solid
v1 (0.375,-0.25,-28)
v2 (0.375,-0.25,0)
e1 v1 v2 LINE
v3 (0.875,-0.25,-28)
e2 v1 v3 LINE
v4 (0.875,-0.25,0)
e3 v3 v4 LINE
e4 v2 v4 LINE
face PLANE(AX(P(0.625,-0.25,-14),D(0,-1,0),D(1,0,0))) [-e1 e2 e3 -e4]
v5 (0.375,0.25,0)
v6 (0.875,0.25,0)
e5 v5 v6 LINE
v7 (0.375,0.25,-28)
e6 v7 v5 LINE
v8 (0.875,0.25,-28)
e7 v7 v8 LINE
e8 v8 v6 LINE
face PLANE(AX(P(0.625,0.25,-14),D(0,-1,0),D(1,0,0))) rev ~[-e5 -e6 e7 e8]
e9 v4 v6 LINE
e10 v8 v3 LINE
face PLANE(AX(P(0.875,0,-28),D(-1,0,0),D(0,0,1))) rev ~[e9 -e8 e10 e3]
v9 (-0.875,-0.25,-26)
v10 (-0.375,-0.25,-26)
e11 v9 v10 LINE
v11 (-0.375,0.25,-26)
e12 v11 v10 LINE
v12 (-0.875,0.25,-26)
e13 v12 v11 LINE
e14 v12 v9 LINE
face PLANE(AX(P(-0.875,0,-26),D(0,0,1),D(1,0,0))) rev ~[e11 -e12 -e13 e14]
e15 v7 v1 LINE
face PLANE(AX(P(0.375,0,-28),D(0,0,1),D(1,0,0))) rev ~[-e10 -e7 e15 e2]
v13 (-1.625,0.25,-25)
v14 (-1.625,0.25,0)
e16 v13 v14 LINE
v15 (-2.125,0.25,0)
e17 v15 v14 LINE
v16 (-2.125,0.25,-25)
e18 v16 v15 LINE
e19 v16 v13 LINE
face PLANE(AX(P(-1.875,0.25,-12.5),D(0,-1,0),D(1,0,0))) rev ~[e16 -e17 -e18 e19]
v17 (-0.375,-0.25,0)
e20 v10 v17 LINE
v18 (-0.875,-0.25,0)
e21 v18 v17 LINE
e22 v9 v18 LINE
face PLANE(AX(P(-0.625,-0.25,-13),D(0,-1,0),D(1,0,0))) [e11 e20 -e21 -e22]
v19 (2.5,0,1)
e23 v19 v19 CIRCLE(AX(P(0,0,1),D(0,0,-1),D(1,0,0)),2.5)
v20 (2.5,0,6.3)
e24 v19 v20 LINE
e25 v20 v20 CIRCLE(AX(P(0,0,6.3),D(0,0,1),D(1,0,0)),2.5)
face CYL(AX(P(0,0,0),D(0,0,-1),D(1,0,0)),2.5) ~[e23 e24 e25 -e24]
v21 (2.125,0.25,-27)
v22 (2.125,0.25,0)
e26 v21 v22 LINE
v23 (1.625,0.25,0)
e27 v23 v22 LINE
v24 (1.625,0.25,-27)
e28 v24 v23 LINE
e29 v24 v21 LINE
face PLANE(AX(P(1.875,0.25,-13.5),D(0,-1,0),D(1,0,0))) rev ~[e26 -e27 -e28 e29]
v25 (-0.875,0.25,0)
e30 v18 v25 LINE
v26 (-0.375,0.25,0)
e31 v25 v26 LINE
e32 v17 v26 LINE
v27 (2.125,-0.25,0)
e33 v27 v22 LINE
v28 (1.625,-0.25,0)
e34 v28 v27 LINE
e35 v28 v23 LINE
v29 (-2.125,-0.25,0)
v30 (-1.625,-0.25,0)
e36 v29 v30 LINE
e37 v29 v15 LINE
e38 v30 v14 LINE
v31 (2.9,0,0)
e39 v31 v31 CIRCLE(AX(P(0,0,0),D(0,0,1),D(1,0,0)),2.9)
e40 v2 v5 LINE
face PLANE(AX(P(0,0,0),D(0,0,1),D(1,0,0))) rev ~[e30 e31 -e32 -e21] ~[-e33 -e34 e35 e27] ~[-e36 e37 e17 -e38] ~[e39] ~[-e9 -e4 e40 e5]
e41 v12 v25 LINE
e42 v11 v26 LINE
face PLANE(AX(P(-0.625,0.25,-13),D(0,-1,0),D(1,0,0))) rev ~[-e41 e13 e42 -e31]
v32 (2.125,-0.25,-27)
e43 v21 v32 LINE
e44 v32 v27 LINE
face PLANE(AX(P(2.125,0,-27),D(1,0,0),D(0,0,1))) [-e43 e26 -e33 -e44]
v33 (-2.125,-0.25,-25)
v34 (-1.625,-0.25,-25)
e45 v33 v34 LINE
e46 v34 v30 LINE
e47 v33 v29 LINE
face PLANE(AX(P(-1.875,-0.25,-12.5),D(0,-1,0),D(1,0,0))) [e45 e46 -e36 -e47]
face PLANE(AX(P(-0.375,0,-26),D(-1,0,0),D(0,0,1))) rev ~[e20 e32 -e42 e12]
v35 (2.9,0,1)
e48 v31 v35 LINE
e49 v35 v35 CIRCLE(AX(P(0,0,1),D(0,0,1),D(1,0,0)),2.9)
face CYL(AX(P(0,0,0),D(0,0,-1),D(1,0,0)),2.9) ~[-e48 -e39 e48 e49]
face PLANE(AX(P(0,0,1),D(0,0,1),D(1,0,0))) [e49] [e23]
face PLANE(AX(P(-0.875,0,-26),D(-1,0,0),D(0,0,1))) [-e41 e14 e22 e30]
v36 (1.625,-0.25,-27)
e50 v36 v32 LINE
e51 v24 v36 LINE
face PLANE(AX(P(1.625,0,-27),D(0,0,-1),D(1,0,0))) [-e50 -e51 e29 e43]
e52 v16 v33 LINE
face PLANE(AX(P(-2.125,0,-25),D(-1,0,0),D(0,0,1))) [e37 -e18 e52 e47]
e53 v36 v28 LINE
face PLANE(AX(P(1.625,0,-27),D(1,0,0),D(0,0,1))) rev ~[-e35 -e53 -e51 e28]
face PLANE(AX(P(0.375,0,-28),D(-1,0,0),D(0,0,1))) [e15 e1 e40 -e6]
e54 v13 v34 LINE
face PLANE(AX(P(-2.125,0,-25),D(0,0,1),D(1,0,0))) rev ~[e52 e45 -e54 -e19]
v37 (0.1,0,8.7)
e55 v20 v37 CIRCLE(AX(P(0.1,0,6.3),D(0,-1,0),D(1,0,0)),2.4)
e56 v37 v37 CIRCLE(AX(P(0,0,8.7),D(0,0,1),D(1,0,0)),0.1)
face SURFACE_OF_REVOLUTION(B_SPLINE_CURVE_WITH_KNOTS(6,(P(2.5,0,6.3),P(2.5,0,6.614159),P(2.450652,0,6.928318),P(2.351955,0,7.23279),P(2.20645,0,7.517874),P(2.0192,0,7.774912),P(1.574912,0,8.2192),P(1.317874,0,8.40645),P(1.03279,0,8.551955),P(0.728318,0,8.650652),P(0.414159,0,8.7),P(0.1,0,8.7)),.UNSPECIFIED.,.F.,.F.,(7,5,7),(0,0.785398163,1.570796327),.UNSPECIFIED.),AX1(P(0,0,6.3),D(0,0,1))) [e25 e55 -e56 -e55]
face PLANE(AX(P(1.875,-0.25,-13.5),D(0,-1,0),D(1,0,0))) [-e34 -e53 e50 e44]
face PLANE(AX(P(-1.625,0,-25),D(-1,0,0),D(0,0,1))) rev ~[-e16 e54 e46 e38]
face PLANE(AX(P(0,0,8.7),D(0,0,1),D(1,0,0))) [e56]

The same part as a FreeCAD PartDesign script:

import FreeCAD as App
import Part
import Sketcher


def edges_at(feature, points):
    """Names of the edges that pass closest to the given points."""
    edges = feature.Shape.Edges
    near = lambda p: min(range(len(edges)), key=lambda i: edges[i].distToShape(Part.Vertex(*p))[0])
    return sorted({f"Edge{near(p) + 1}" for p in points})


def add_polygon(sketch, points):
    """Adds a closed chain of lines whose ends are joined by coincident constraints."""
    first, n = sketch.GeometryCount, len(points)
    for a, b in zip(points, points[1:] + points[:1]):
        sketch.addGeometry(Part.LineSegment(App.Vector(*a, 0), App.Vector(*b, 0)), False)
    for i in range(n):
        sketch.addConstraint(Sketcher.Constraint("Coincident", first + i, 2, first + (i + 1) % n, 1))

doc = App.newDocument("Part")
body = doc.addObject("PartDesign::Body", "Body")

# Sketch on XY plane
sketch1 = body.newObject("Sketcher::SketchObject", "Sketch")
sketch1.AttachmentSupport = (doc.getObject("XY_Plane"), [""])
sketch1.MapMode = "FlatFace"
sketch1.addGeometry(Part.Circle(App.Vector(0, 0, 0), App.Vector(0, 0, 1), 2.9), False)
sketch1.addConstraint([
    Sketcher.Constraint("Coincident", 0, 3, -1, 1),
    Sketcher.Constraint("Diameter", 0, 5.8),
])
pad1 = body.newObject("PartDesign::Pad", "Pad")
pad1.Profile = sketch1
pad1.Length = 1

# Sketch on XY plane
sketch2 = body.newObject("Sketcher::SketchObject", "Sketch001")
sketch2.AttachmentSupport = (doc.getObject("XY_Plane"), [""])
sketch2.MapMode = "FlatFace"
sketch2.addGeometry(Part.Circle(App.Vector(0, 0, 0), App.Vector(0, 0, 1), 2.5), False)
sketch2.addConstraint([
    Sketcher.Constraint("Coincident", 0, 3, -1, 1),
    Sketcher.Constraint("Diameter", 0, 5.0),
])
pad2 = body.newObject("PartDesign::Pad", "Pad001")
pad2.Profile = sketch2
pad2.Length = 8.7
doc.recompute()

fillet = body.newObject("PartDesign::Fillet", "Fillet")
fillet.Base = (pad2, edges_at(pad2, [(-2.5, 0, 8.7)]))
fillet.Radius = 2.4

# Sketch on XZ plane
sketch3 = body.newObject("Sketcher::SketchObject", "Sketch002")
sketch3.AttachmentSupport = (doc.getObject("XZ_Plane"), [""])
sketch3.MapMode = "FlatFace"
add_polygon(sketch3, [(-2.125, 0), (-2.125, -25), (-1.625, -25), (-1.625, 0)])  # lines 0-3
add_polygon(sketch3, [(-0.875, 0), (-0.875, -26), (-0.375, -26), (-0.375, 0)])  # lines 4-7
add_polygon(sketch3, [(0.375, 0), (0.375, -28), (0.875, -28), (0.875, 0)])  # lines 8-11
add_polygon(sketch3, [(1.625, 0), (1.625, -27), (2.125, -27), (2.125, 0)])  # lines 12-15
sketch3.addConstraint([
    Sketcher.Constraint("Vertical", 0),
    Sketcher.Constraint("Horizontal", 1),
    Sketcher.Constraint("Vertical", 2),
    Sketcher.Constraint("Horizontal", 3),
    Sketcher.Constraint("Vertical", 4),
    Sketcher.Constraint("Horizontal", 5),
    Sketcher.Constraint("Vertical", 6),
    Sketcher.Constraint("Horizontal", 7),
    Sketcher.Constraint("Vertical", 8),
    Sketcher.Constraint("Horizontal", 9),
    Sketcher.Constraint("Vertical", 10),
    Sketcher.Constraint("Horizontal", 11),
    Sketcher.Constraint("Vertical", 12),
    Sketcher.Constraint("Horizontal", 13),
    Sketcher.Constraint("Vertical", 14),
    Sketcher.Constraint("Horizontal", 15),
    Sketcher.Constraint("Symmetric", 7, 2, 10, 2, -1, 1),
    Sketcher.Constraint("Symmetric", 3, 2, 14, 2, -1, 1),
    Sketcher.Constraint("Symmetric", 6, 2, 11, 2, -2),
    Sketcher.Constraint("Symmetric", 2, 2, 15, 2, -2),
    Sketcher.Constraint("Equal", 3, 5),
    Sketcher.Constraint("DistanceY", 0, 2, 0, 1, 25.0),
    Sketcher.Constraint("DistanceY", 4, 2, 4, 1, 26.0),
    Sketcher.Constraint("DistanceY", 8, 2, 8, 1, 28.0),
    Sketcher.Constraint("DistanceY", 12, 2, 12, 1, 27.0),
    Sketcher.Constraint("DistanceX", 1, 1, 1, 2, 0.5),
    Sketcher.Constraint("DistanceX", 1, 2, 8, 2, 2.0),
    Sketcher.Constraint("DistanceX", 1, 2, 4, 2, 0.75),
])
pad3 = body.newObject("PartDesign::Pad", "Pad002")
pad3.Profile = sketch3
pad3.Length = 0.5
pad3.Midplane = True

doc.recompute()
